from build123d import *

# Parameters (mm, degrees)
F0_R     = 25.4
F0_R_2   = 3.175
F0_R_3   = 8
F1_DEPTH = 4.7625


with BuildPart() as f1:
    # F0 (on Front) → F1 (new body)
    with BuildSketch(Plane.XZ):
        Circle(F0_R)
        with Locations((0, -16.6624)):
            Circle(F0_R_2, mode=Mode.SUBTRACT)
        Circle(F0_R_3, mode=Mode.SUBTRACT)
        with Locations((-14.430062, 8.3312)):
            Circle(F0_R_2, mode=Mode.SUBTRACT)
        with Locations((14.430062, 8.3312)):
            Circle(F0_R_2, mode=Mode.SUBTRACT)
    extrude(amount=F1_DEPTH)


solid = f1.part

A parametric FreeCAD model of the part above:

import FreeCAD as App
import Part
import Sketcher
from FreeCAD import Vector
Q = App.Units.Quantity

doc = App.newDocument("Part")
params = doc.addObject("Spreadsheet::Sheet", "Params")
for row, (alias, value) in enumerate([
    ("sketch1_diameter", "2 in"),
    ("sketch1_diameter2", "0.25 in"),
    ("pad1_length", "0.1875 in"),
], start=1):
    params.set(f"A{row}", alias)
    params.set(f"B{row}", "=" + value)
    params.setAlias(f"B{row}", alias)

body = doc.addObject("PartDesign::Body", "Body")

sketch1 = body.newObject("Sketcher::SketchObject", "Sketch")
sketch1.AttachmentSupport = (doc.getObject("XZ_Plane"), [""])
sketch1.MapMode = "FlatFace"
sketch1.addGeometry([
    Part.Circle(Vector(0, 0, 0), Vector(0, 0, 1), 25.4),
    Part.Circle(Vector(0, -16.7, 0), Vector(0, 0, 1), 3.2),
    Part.Circle(Vector(-14.4, 8.3, 0), Vector(0, 0, 1), 3.2),
    Part.Circle(Vector(0, 0, 0), Vector(0, 0, 1), 8),
    Part.Circle(Vector(14.4, 8.3, 0), Vector(0, 0, 1), 3.2),
], False)
sketch1.addConstraint([
    Sketcher.Constraint("Coincident", 0, 3, -1, 1),
    Sketcher.Constraint("Coincident", 3, 3, -1, 1),
    Sketcher.Constraint("Equal", 1, 2),
    Sketcher.Constraint("Equal", 2, 4),
    Sketcher.Constraint("Symmetric", 2, 3, 4, 3, -2),
    Sketcher.Constraint("PointOnObject", 1, 3, -2),
    Sketcher.Constraint("Diameter", 0, Q("2 in")),
    Sketcher.Constraint("Diameter", 1, Q("0.25 in")),
    Sketcher.Constraint("Diameter", 3, 16.0),
    Sketcher.Constraint("DistanceY", 1, 3, -1, 1, Q("0.656 in")),
    Sketcher.Constraint("DistanceY", -1, 1, 2, 3, Q("0.328 in")),
    Sketcher.Constraint("DistanceX", 2, 3, -1, 1, 14.430062),
])
sketch1.setExpression("Constraints[6]", "Params.sketch1_diameter")
sketch1.setExpression("Constraints[7]", "Params.sketch1_diameter2")
pad1 = body.newObject("PartDesign::Pad", "Pad")
pad1.Profile = sketch1
pad1.setExpression("Length", "Params.pad1_length")

doc.recompute()
